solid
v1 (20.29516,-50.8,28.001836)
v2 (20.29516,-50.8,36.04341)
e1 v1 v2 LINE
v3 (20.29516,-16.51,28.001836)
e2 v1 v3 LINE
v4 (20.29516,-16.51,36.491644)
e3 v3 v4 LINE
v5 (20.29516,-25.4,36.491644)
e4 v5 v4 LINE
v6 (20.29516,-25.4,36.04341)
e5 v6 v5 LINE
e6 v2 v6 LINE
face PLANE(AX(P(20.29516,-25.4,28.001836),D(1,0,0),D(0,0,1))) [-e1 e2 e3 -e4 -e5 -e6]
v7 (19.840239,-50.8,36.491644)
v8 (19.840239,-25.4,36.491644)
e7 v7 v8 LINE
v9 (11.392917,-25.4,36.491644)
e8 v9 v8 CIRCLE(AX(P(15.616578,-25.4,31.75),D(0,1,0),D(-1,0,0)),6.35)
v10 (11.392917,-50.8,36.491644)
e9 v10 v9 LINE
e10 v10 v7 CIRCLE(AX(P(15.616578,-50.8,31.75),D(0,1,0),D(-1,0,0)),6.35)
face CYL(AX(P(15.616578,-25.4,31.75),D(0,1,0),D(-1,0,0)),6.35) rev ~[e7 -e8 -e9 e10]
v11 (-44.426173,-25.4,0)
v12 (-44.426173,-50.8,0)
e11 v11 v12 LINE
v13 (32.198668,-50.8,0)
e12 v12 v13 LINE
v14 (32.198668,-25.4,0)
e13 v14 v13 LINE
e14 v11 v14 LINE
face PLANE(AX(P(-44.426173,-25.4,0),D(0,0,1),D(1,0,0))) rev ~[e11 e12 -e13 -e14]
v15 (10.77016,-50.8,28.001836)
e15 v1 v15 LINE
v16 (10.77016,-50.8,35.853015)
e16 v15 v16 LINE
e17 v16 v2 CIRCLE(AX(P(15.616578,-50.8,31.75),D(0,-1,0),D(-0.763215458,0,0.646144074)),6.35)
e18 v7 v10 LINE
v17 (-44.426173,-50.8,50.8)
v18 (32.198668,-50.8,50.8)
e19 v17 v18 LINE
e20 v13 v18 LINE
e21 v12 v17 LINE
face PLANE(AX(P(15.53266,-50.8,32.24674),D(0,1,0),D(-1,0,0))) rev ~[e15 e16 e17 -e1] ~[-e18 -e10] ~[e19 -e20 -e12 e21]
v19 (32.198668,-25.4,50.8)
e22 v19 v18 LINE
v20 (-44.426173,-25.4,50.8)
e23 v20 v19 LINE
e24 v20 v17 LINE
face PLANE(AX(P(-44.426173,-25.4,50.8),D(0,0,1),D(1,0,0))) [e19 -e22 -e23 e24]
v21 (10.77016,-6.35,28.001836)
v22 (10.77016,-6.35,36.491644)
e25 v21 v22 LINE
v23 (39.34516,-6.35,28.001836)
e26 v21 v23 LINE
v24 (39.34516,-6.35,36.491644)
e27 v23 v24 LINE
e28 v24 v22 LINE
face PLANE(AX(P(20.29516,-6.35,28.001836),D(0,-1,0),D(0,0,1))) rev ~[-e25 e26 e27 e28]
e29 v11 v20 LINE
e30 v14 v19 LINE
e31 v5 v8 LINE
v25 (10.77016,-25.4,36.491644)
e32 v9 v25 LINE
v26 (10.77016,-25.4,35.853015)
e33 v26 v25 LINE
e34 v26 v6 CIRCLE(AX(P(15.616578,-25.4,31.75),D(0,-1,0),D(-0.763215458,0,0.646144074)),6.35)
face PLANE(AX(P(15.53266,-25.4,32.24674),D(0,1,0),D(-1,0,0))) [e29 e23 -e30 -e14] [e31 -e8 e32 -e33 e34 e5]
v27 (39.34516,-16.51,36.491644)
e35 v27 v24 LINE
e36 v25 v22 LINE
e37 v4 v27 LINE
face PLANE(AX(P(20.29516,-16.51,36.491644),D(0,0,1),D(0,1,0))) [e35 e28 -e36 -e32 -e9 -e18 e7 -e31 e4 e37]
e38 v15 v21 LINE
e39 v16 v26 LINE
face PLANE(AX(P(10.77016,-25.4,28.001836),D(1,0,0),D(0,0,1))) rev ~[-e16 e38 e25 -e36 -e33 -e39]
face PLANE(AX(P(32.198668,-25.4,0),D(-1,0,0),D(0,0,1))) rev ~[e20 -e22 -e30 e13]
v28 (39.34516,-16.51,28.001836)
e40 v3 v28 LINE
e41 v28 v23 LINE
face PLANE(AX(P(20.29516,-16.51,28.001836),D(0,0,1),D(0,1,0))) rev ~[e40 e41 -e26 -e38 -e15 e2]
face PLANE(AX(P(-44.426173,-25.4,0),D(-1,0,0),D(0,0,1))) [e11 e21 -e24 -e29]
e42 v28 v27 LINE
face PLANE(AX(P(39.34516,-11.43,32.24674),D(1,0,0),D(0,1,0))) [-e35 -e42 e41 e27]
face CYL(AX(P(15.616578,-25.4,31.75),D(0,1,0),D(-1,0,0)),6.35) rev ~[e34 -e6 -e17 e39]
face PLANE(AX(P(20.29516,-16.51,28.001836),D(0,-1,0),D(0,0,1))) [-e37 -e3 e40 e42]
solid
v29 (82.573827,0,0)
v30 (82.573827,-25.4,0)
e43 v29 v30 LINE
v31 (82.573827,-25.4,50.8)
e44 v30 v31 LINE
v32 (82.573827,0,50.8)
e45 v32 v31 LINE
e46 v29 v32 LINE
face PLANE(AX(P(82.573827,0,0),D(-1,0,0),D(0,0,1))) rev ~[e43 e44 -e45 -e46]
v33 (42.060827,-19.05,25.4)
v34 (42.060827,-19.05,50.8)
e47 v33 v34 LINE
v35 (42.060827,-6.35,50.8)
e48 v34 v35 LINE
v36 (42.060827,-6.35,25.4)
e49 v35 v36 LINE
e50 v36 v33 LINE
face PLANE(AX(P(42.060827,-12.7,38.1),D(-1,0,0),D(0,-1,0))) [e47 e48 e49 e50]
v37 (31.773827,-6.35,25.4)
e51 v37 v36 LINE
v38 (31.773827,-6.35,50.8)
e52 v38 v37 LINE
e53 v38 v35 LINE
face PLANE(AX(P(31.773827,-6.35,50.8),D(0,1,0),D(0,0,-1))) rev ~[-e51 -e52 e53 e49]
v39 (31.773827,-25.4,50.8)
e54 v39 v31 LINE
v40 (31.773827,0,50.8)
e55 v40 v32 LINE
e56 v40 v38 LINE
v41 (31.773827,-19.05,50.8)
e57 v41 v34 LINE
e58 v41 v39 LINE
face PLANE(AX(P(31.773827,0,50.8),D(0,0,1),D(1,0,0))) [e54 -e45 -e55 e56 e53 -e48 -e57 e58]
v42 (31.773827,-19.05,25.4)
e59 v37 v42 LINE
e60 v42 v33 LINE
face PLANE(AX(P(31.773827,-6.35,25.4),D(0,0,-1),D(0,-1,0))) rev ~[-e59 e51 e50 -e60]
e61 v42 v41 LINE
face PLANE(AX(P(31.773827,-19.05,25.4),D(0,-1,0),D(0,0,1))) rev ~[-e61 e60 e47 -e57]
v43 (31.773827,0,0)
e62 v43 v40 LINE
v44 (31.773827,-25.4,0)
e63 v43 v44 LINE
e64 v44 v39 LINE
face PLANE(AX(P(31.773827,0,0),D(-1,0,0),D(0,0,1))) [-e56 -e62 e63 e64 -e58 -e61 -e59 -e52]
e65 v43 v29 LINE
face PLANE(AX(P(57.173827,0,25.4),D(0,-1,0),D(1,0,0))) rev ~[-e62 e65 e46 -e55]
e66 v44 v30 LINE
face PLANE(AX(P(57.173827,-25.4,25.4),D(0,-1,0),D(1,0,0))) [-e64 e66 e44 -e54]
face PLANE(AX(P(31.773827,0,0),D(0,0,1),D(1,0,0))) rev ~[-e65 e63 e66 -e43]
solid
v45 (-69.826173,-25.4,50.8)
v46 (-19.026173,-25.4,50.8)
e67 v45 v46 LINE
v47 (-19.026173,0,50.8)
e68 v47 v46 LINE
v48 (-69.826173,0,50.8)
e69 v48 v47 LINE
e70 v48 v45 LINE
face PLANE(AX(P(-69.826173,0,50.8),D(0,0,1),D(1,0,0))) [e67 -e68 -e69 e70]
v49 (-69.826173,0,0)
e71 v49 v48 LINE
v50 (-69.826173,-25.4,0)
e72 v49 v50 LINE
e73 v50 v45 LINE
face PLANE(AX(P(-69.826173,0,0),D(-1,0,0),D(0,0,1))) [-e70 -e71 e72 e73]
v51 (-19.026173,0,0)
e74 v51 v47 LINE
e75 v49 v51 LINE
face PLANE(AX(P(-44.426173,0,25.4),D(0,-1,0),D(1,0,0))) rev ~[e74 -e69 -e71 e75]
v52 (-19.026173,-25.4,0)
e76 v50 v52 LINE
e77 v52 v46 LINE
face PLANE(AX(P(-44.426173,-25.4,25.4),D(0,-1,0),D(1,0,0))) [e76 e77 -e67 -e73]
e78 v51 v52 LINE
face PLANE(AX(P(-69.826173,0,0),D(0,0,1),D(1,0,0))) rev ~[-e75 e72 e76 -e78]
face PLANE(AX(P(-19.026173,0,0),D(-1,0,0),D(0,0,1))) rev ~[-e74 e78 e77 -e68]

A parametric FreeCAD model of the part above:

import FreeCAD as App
import Part
import Sketcher
Q = App.Units.Quantity


def add_polygon(sketch, points):
    """Adds a closed chain of lines whose ends are joined by coincident constraints."""
    first, n = sketch.GeometryCount, len(points)
    for a, b in zip(points, points[1:] + points[:1]):
        sketch.addGeometry(Part.LineSegment(App.Vector(*a, 0), App.Vector(*b, 0)), False)
    for i in range(n):
        sketch.addConstraint(Sketcher.Constraint("Coincident", first + i, 2, first + (i + 1) % n, 1))

doc = App.newDocument("Part")
body = doc.addObject("PartDesign::Body", "Body")

# Sketch on XZ plane
sketch1 = body.newObject("Sketcher::SketchObject", "Sketch")
sketch1.AttachmentSupport = (doc.getObject("XZ_Plane"), [""])
sketch1.MapMode = "FlatFace"
add_polygon(sketch1, [(32, 51), (32, 0), (83, 0), (83, 51)])  # lines 0-3
sketch1.addConstraint([
    Sketcher.Constraint("Vertical", 0),
    Sketcher.Constraint("Horizontal", 1),
    Sketcher.Constraint("Vertical", 2),
    Sketcher.Constraint("Horizontal", 3),
    Sketcher.Constraint("PointOnObject", 0, 2, -1),
    Sketcher.Constraint("Equal", 3, 0),
    Sketcher.Constraint("DistanceX", 1, 1, 1, 2, Q("2 in")),
    Sketcher.Constraint("DistanceX", -1, 1, 0, 2, 31.773827),
])
pad1 = body.newObject("PartDesign::Pad", "Pad")
pad1.Profile = sketch1
pad1.Length = Q("1 in")

# Sketch on YZ plane
sketch2 = body.newObject("Sketcher::SketchObject", "Sketch001")
sketch2.AttachmentSupport = (doc.getObject("YZ_Plane"), [""])
sketch2.MapMode = "FlatFace"
sketch2.AttachmentOffset = App.Placement(App.Vector(0, 0, 31.773827), App.Rotation())
add_polygon(sketch2, [(-6, 51), (-6, 25), (-19, 25), (-19, 51)])  # lines 0-3
sketch2.addConstraint([
    Sketcher.Constraint("Vertical", 0),
    Sketcher.Constraint("Horizontal", 1),
    Sketcher.Constraint("Vertical", 2),
    Sketcher.Constraint("Horizontal", 3),
    Sketcher.Constraint("DistanceY", 0, 2, 0, 1, Q("1 in")),
    Sketcher.Constraint("DistanceX", 1, 2, 1, 1, Q("0.5 in")),
    Sketcher.Constraint("DistanceY", -1, 1, 0, 2, Q("1 in")),
    Sketcher.Constraint("DistanceX", 0, 2, -1, 1, Q("0.25 in")),
])
pocket1 = body.newObject("PartDesign::Pocket", "Pocket")
pocket1.Profile = sketch2
pocket1.Length = Q("0.405 in")
pocket1.Reversed = True
body2 = doc.addObject("PartDesign::Body", "Body001")

# Sketch on XZ plane
sketch3 = body2.newObject("Sketcher::SketchObject", "Sketch002")
sketch3.AttachmentSupport = (doc.getObject("XZ_Plane001"), [""])
sketch3.MapMode = "FlatFace"
add_polygon(sketch3, [(-70, 51), (-70, 0), (-19, 0), (-19, 51)])  # lines 0-3
sketch3.addConstraint([
    Sketcher.Constraint("Vertical", 0),
    Sketcher.Constraint("Horizontal", 1),
    Sketcher.Constraint("Vertical", 2),
    Sketcher.Constraint("Horizontal", 3),
    Sketcher.Constraint("PointOnObject", 0, 2, -1),
    Sketcher.Constraint("Equal", 3, 0),
    Sketcher.Constraint("DistanceX", 1, 1, 1, 2, Q("2 in")),
    Sketcher.Constraint("DistanceX", 0, 2, -1, 1, 69.826173),
])
pad2 = body2.newObject("PartDesign::Pad", "Pad001")
pad2.Profile = sketch3
pad2.Length = Q("1 in")
body3 = doc.addObject("PartDesign::Body", "Body002")

# Sketch on XZ plane
sketch4 = body3.newObject("Sketcher::SketchObject", "Sketch003")
sketch4.AttachmentSupport = (doc.getObject("XZ_Plane002"), [""])
sketch4.MapMode = "FlatFace"
sketch4.AttachmentOffset = App.Placement(App.Vector(0, 0, 1 * 25.4), App.Rotation())
add_polygon(sketch4, [(-44, 51), (-44, 0), (32, 0), (32, 51)])  # lines 0-3
sketch4.addConstraint([
    Sketcher.Constraint("Vertical", 0),
    Sketcher.Constraint("Horizontal", 1),
    Sketcher.Constraint("Vertical", 2),
    Sketcher.Constraint("Horizontal", 3),
    Sketcher.Constraint("PointOnObject", 0, 2, -1),
    Sketcher.Constraint("DistanceY", 0, 2, 0, 1, Q("2 in")),
    Sketcher.Constraint("DistanceX", 1, 1, 1, 2, 76.62484),
    Sketcher.Constraint("DistanceX", 0, 2, -1, 1, 44.426173),
])
pad3 = body3.newObject("PartDesign::Pad", "Pad002")
pad3.Profile = sketch4
pad3.Length = Q("1 in")

# Sketch on XZ plane
sketch5 = body3.newObject("Sketcher::SketchObject", "Sketch004")
sketch5.AttachmentSupport = (doc.getObject("XZ_Plane002"), [""])
sketch5.MapMode = "FlatFace"
sketch5.AttachmentOffset = App.Placement(App.Vector(0, 0, 1 * 25.4), App.Rotation())
sketch5.addGeometry(Part.Circle(App.Vector(16, 32, 0), App.Vector(0, 0, 1), 6), False)
sketch5.addConstraint([
    Sketcher.Constraint("Diameter", 0, Q("0.5 in")),
    Sketcher.Constraint("DistanceY", -1, 1, 0, 3, Q("1.25 in")),
    Sketcher.Constraint("DistanceX", -1, 1, 0, 3, 15.616578),
])
pocket2 = body3.newObject("PartDesign::Pocket", "Pocket001")
pocket2.Profile = sketch5
pocket2.Length = Q("1 in")
pocket2.Reversed = True

# Sketch on XZ plane
sketch6 = body3.newObject("Sketcher::SketchObject", "Sketch005")
sketch6.AttachmentSupport = (doc.getObject("XZ_Plane002"), [""])
sketch6.MapMode = "FlatFace"
sketch6.AttachmentOffset = App.Placement(App.Vector(0, 0, 1 * 25.4), App.Rotation())
add_polygon(sketch6, [(20, 36), (20, 28), (11, 28), (11, 36)])  # lines 0-3
sketch6.addConstraint([
    Sketcher.Constraint("Vertical", 0),
    Sketcher.Constraint("Horizontal", 1),
    Sketcher.Constraint("Vertical", 2),
    Sketcher.Constraint("Horizontal", 3),
    Sketcher.Constraint("DistanceX", 1, 2, 1, 1, Q("0.375 in")),
    Sketcher.Constraint("DistanceY", 0, 2, 0, 1, 8.489808),
    Sketcher.Constraint("DistanceX", -1, 1, 0, 2, 20.29516),
    Sketcher.Constraint("DistanceY", -1, 1, 0, 2, 28.001836),
])
pad4 = body3.newObject("PartDesign::Pad", "Pad003")
pad4.Profile = sketch6
pad4.Type = "TwoLengths"
pad4.Length = Q("1 in")
pad4.Length2 = Q("0.75 in")

# Sketch on YZ plane
sketch7 = body3.newObject("Sketcher::SketchObject", "Sketch006")
sketch7.AttachmentSupport = (doc.getObject("YZ_Plane002"), [""])
sketch7.MapMode = "FlatFace"
sketch7.AttachmentOffset = App.Placement(App.Vector(0, 0, 20.29516), App.Rotation())
add_polygon(sketch7, [(-17, 36), (-17, 28), (-6, 28), (-6, 36)])  # lines 0-3
sketch7.addConstraint([
    Sketcher.Constraint("Vertical", 0),
    Sketcher.Constraint("Horizontal", 1),
    Sketcher.Constraint("Vertical", 2),
    Sketcher.Constraint("Horizontal", 3),
    Sketcher.Constraint("DistanceX", 1, 1, 1, 2, Q("0.4 in")),
    Sketcher.Constraint("DistanceX", 0, 2, -1, 1, Q("0.65 in")),
    Sketcher.Constraint("DistanceY", 0, 2, 0, 1, 8.489808),
    Sketcher.Constraint("DistanceY", -1, 1, 0, 2, 28.001836),
])
pad5 = body3.newObject("PartDesign::Pad", "Pad004")
pad5.Profile = sketch7
pad5.Length = Q("0.75 in")

doc.recompute()
